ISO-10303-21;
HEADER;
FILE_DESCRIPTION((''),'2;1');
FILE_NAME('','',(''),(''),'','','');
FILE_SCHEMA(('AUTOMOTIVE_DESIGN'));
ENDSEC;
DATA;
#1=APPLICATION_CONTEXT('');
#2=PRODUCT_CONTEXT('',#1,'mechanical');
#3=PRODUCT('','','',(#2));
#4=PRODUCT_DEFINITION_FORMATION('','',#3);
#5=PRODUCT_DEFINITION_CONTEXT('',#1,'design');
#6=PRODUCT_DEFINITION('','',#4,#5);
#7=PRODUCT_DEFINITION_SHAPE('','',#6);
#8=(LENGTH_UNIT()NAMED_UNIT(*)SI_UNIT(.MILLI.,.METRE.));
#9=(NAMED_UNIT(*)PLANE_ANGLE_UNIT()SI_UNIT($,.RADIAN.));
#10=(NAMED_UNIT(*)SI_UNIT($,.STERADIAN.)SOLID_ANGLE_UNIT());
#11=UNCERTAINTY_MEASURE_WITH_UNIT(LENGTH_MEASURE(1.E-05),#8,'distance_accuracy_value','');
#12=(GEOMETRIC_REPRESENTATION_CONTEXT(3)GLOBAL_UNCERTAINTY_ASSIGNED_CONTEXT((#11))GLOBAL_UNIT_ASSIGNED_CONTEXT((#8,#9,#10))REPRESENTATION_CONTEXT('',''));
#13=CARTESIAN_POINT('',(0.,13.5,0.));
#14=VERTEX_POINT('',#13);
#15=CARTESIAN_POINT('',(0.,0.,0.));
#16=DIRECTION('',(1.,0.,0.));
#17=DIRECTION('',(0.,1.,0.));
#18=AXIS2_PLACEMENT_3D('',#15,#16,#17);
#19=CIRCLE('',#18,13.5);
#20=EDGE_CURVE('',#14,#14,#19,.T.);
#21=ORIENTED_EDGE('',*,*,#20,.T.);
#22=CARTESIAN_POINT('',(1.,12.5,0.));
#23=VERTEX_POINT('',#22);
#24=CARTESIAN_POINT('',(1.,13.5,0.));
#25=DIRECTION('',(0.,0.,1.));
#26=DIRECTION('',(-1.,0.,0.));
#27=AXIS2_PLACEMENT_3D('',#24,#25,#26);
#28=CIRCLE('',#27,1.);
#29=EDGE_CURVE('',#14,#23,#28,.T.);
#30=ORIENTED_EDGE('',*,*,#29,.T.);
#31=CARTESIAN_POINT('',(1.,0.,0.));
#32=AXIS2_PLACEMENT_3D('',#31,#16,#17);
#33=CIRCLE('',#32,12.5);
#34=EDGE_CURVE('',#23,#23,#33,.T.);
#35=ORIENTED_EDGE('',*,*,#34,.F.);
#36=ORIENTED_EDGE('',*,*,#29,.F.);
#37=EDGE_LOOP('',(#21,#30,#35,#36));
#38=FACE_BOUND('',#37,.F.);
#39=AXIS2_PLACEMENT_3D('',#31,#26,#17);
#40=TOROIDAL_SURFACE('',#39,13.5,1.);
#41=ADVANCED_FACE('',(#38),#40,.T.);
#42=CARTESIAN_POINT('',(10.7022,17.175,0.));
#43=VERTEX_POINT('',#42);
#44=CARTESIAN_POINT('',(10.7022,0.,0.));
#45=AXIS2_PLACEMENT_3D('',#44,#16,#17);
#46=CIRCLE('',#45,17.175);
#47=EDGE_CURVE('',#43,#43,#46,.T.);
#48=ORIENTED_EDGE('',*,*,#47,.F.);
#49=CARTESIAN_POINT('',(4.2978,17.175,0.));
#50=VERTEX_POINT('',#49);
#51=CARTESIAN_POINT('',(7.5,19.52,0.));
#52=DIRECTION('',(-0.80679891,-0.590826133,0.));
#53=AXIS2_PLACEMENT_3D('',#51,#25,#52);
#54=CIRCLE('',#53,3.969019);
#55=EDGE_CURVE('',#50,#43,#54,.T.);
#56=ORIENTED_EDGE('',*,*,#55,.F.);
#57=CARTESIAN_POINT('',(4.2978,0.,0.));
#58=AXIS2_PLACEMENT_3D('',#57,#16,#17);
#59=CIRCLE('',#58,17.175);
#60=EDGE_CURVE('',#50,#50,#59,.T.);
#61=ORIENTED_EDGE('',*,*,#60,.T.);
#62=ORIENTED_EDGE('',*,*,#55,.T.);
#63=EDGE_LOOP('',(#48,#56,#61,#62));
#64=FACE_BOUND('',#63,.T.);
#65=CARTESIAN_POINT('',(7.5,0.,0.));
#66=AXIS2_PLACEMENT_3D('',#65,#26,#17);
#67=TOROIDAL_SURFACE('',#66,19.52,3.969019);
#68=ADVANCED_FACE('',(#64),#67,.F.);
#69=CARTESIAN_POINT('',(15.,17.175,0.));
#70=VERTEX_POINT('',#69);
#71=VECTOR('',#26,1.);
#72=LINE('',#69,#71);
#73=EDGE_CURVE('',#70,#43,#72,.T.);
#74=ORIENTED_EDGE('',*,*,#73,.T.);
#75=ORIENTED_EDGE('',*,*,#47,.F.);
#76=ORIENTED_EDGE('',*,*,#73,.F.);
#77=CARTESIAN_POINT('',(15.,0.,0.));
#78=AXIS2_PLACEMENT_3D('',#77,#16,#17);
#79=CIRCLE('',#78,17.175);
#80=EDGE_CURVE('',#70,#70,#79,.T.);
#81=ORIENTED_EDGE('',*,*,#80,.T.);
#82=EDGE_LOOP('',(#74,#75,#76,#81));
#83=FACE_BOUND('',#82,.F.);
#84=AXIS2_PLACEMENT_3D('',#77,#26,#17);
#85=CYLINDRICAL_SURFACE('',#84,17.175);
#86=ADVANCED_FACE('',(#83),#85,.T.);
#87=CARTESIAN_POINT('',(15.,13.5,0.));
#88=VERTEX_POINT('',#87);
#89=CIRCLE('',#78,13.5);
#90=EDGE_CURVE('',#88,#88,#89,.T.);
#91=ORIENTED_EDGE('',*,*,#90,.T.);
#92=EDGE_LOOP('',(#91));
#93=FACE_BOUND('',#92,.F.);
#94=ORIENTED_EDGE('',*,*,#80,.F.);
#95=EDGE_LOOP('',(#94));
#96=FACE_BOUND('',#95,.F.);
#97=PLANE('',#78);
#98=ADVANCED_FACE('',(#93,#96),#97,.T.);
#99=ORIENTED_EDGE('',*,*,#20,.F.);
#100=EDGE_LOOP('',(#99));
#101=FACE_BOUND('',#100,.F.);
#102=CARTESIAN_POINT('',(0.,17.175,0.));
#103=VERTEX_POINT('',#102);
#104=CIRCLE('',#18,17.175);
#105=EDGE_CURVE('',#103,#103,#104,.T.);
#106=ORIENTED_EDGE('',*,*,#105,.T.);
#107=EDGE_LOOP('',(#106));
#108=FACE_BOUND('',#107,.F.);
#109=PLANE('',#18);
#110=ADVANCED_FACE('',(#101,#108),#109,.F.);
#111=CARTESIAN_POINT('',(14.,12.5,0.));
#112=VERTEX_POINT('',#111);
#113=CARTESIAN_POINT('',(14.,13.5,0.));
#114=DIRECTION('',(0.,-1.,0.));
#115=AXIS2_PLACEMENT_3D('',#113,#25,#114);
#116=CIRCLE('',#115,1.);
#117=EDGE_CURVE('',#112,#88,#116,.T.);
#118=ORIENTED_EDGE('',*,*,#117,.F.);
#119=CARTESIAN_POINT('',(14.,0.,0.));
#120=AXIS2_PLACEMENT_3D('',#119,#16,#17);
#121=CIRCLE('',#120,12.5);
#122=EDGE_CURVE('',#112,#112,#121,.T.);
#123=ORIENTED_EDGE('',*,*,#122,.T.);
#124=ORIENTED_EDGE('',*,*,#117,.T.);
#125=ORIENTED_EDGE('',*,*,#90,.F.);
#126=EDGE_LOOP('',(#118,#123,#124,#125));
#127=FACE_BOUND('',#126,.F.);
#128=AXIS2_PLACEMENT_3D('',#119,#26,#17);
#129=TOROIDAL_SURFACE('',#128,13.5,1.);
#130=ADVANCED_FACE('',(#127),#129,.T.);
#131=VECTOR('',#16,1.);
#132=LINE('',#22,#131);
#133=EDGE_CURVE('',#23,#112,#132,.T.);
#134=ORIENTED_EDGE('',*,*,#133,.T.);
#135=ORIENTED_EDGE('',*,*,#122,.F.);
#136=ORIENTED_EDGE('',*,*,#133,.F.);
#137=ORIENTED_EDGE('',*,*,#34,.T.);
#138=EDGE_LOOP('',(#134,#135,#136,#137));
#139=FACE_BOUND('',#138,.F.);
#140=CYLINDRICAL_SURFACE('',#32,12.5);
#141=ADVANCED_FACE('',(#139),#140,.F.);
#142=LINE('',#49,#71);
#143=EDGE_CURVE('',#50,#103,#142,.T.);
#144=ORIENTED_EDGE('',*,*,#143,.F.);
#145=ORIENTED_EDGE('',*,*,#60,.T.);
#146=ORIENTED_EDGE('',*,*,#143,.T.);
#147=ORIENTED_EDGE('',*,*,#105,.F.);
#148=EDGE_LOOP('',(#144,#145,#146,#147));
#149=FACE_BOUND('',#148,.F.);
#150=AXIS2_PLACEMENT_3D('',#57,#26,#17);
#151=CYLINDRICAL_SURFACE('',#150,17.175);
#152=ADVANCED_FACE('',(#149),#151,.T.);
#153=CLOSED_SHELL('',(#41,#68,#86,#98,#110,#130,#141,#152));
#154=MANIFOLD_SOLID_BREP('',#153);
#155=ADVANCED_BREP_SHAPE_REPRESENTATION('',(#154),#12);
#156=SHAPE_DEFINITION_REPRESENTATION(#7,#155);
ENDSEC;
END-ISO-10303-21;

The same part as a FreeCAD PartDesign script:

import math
import FreeCAD as App
import Part
import Sketcher
from FreeCAD import Vector

doc = App.newDocument("Part")
params = doc.addObject("Spreadsheet::Sheet", "Params")
for row, (alias, value) in enumerate([
    ("sketch1_radius", "1 mm"),
    ("sketch1_width", "13 mm"),
    ("revolution_angle", "360 deg"),
], start=1):
    params.set(f"A{row}", alias)
    params.set(f"B{row}", "=" + value)
    params.setAlias(f"B{row}", alias)

body = doc.addObject("PartDesign::Body", "Body")

sketch1 = body.newObject("Sketcher::SketchObject", "Sketch")
sketch1.AttachmentSupport = (doc.getObject("XY_Plane"), [""])
sketch1.MapMode = "FlatFace"
sketch1.addGeometry(Part.LineSegment(Vector(0, 17.175, 0), Vector(0, 13.5, 0)), False)
sketch1.addGeometry(Part.ArcOfCircle(Part.Circle(Vector(1, 13.5, 0), Vector(0, 0, 1), 1), math.radians(180), math.radians(270)), False)
sketch1.addGeometry(Part.LineSegment(Vector(1, 12.5, 0), Vector(14, 12.5, 0)), False)
sketch1.addGeometry(Part.ArcOfCircle(Part.Circle(Vector(14, 13.5, 0), Vector(0, 0, 1), 1), math.radians(-90), math.radians(0)), False)
sketch1.addGeometry(Part.LineSegment(Vector(15, 13.5, 0), Vector(15, 17.175, 0)), False)
sketch1.addGeometry(Part.LineSegment(Vector(15, 17.175, 0), Vector(10.7022, 17.175, 0)), False)
sketch1.addGeometry(Part.ArcOfCircle(Part.Circle(Vector(7.5, 19.52, 0), Vector(0, 0, 1), 3.969019), math.radians(-143.784345), math.radians(-36.215655)), False)
sketch1.addGeometry(Part.LineSegment(Vector(4.2978, 17.175, 0), Vector(0, 17.175, 0)), False)
sketch1.addConstraint(Sketcher.Constraint("Tangent", 0, 2, 1, 1))
sketch1.addConstraint(Sketcher.Constraint("Tangent", 1, 2, 2, 1))
sketch1.addConstraint(Sketcher.Constraint("Tangent", 2, 2, 3, 1))
sketch1.addConstraint(Sketcher.Constraint("Tangent", 3, 2, 4, 1))
sketch1.addConstraint(Sketcher.Constraint("Coincident", 4, 2, 5, 1))
sketch1.addConstraint(Sketcher.Constraint("Coincident", 5, 2, 6, 2))
sketch1.addConstraint(Sketcher.Constraint("Coincident", 6, 1, 7, 1))
sketch1.addConstraint(Sketcher.Constraint("Coincident", 7, 2, 0, 1))
sketch1.addConstraint(Sketcher.Constraint("Vertical", 0))
sketch1.addConstraint(Sketcher.Constraint("Horizontal", 2))
sketch1.addConstraint(Sketcher.Constraint("Vertical", 4))
sketch1.addConstraint(Sketcher.Constraint("Horizontal", 5))
sketch1.addConstraint(Sketcher.Constraint("Horizontal", 7))
sketch1.addConstraint(Sketcher.Constraint("Equal", 1, 3))
sketch1.addConstraint(Sketcher.Constraint("PointOnObject", 0, 2, -2))
sketch1.addConstraint(Sketcher.Constraint("Horizontal", 5, 2, 6, 1))
sketch1.addConstraint(Sketcher.Constraint("Equal", 5, 7))
sketch1.addConstraint(Sketcher.Constraint("Radius", 1, 1.0))
sketch1.addConstraint(Sketcher.Constraint("DistanceX", 2, 1, 2, 2, 13.0))
sketch1.addConstraint(Sketcher.Constraint("Radius", 6, 3.969))
sketch1.addConstraint(Sketcher.Constraint("DistanceY", -1, 1, 1, 3, 13.5))
sketch1.addConstraint(Sketcher.Constraint("DistanceY", 0, 2, 0, 1, 3.675))
sketch1.addConstraint(Sketcher.Constraint("DistanceY", -1, 1, 6, 3, 19.52))
sketch1.setExpression("Constraints[17]", "Params.sketch1_radius")
sketch1.setExpression("Constraints[18]", "Params.sketch1_width")
revolution = body.newObject("PartDesign::Revolution", "Revolution")
revolution.Profile = sketch1
revolution.ReferenceAxis = (sketch1, ["H_Axis"])
revolution.setExpression("Angle", "Params.revolution_angle")

doc.recompute()
